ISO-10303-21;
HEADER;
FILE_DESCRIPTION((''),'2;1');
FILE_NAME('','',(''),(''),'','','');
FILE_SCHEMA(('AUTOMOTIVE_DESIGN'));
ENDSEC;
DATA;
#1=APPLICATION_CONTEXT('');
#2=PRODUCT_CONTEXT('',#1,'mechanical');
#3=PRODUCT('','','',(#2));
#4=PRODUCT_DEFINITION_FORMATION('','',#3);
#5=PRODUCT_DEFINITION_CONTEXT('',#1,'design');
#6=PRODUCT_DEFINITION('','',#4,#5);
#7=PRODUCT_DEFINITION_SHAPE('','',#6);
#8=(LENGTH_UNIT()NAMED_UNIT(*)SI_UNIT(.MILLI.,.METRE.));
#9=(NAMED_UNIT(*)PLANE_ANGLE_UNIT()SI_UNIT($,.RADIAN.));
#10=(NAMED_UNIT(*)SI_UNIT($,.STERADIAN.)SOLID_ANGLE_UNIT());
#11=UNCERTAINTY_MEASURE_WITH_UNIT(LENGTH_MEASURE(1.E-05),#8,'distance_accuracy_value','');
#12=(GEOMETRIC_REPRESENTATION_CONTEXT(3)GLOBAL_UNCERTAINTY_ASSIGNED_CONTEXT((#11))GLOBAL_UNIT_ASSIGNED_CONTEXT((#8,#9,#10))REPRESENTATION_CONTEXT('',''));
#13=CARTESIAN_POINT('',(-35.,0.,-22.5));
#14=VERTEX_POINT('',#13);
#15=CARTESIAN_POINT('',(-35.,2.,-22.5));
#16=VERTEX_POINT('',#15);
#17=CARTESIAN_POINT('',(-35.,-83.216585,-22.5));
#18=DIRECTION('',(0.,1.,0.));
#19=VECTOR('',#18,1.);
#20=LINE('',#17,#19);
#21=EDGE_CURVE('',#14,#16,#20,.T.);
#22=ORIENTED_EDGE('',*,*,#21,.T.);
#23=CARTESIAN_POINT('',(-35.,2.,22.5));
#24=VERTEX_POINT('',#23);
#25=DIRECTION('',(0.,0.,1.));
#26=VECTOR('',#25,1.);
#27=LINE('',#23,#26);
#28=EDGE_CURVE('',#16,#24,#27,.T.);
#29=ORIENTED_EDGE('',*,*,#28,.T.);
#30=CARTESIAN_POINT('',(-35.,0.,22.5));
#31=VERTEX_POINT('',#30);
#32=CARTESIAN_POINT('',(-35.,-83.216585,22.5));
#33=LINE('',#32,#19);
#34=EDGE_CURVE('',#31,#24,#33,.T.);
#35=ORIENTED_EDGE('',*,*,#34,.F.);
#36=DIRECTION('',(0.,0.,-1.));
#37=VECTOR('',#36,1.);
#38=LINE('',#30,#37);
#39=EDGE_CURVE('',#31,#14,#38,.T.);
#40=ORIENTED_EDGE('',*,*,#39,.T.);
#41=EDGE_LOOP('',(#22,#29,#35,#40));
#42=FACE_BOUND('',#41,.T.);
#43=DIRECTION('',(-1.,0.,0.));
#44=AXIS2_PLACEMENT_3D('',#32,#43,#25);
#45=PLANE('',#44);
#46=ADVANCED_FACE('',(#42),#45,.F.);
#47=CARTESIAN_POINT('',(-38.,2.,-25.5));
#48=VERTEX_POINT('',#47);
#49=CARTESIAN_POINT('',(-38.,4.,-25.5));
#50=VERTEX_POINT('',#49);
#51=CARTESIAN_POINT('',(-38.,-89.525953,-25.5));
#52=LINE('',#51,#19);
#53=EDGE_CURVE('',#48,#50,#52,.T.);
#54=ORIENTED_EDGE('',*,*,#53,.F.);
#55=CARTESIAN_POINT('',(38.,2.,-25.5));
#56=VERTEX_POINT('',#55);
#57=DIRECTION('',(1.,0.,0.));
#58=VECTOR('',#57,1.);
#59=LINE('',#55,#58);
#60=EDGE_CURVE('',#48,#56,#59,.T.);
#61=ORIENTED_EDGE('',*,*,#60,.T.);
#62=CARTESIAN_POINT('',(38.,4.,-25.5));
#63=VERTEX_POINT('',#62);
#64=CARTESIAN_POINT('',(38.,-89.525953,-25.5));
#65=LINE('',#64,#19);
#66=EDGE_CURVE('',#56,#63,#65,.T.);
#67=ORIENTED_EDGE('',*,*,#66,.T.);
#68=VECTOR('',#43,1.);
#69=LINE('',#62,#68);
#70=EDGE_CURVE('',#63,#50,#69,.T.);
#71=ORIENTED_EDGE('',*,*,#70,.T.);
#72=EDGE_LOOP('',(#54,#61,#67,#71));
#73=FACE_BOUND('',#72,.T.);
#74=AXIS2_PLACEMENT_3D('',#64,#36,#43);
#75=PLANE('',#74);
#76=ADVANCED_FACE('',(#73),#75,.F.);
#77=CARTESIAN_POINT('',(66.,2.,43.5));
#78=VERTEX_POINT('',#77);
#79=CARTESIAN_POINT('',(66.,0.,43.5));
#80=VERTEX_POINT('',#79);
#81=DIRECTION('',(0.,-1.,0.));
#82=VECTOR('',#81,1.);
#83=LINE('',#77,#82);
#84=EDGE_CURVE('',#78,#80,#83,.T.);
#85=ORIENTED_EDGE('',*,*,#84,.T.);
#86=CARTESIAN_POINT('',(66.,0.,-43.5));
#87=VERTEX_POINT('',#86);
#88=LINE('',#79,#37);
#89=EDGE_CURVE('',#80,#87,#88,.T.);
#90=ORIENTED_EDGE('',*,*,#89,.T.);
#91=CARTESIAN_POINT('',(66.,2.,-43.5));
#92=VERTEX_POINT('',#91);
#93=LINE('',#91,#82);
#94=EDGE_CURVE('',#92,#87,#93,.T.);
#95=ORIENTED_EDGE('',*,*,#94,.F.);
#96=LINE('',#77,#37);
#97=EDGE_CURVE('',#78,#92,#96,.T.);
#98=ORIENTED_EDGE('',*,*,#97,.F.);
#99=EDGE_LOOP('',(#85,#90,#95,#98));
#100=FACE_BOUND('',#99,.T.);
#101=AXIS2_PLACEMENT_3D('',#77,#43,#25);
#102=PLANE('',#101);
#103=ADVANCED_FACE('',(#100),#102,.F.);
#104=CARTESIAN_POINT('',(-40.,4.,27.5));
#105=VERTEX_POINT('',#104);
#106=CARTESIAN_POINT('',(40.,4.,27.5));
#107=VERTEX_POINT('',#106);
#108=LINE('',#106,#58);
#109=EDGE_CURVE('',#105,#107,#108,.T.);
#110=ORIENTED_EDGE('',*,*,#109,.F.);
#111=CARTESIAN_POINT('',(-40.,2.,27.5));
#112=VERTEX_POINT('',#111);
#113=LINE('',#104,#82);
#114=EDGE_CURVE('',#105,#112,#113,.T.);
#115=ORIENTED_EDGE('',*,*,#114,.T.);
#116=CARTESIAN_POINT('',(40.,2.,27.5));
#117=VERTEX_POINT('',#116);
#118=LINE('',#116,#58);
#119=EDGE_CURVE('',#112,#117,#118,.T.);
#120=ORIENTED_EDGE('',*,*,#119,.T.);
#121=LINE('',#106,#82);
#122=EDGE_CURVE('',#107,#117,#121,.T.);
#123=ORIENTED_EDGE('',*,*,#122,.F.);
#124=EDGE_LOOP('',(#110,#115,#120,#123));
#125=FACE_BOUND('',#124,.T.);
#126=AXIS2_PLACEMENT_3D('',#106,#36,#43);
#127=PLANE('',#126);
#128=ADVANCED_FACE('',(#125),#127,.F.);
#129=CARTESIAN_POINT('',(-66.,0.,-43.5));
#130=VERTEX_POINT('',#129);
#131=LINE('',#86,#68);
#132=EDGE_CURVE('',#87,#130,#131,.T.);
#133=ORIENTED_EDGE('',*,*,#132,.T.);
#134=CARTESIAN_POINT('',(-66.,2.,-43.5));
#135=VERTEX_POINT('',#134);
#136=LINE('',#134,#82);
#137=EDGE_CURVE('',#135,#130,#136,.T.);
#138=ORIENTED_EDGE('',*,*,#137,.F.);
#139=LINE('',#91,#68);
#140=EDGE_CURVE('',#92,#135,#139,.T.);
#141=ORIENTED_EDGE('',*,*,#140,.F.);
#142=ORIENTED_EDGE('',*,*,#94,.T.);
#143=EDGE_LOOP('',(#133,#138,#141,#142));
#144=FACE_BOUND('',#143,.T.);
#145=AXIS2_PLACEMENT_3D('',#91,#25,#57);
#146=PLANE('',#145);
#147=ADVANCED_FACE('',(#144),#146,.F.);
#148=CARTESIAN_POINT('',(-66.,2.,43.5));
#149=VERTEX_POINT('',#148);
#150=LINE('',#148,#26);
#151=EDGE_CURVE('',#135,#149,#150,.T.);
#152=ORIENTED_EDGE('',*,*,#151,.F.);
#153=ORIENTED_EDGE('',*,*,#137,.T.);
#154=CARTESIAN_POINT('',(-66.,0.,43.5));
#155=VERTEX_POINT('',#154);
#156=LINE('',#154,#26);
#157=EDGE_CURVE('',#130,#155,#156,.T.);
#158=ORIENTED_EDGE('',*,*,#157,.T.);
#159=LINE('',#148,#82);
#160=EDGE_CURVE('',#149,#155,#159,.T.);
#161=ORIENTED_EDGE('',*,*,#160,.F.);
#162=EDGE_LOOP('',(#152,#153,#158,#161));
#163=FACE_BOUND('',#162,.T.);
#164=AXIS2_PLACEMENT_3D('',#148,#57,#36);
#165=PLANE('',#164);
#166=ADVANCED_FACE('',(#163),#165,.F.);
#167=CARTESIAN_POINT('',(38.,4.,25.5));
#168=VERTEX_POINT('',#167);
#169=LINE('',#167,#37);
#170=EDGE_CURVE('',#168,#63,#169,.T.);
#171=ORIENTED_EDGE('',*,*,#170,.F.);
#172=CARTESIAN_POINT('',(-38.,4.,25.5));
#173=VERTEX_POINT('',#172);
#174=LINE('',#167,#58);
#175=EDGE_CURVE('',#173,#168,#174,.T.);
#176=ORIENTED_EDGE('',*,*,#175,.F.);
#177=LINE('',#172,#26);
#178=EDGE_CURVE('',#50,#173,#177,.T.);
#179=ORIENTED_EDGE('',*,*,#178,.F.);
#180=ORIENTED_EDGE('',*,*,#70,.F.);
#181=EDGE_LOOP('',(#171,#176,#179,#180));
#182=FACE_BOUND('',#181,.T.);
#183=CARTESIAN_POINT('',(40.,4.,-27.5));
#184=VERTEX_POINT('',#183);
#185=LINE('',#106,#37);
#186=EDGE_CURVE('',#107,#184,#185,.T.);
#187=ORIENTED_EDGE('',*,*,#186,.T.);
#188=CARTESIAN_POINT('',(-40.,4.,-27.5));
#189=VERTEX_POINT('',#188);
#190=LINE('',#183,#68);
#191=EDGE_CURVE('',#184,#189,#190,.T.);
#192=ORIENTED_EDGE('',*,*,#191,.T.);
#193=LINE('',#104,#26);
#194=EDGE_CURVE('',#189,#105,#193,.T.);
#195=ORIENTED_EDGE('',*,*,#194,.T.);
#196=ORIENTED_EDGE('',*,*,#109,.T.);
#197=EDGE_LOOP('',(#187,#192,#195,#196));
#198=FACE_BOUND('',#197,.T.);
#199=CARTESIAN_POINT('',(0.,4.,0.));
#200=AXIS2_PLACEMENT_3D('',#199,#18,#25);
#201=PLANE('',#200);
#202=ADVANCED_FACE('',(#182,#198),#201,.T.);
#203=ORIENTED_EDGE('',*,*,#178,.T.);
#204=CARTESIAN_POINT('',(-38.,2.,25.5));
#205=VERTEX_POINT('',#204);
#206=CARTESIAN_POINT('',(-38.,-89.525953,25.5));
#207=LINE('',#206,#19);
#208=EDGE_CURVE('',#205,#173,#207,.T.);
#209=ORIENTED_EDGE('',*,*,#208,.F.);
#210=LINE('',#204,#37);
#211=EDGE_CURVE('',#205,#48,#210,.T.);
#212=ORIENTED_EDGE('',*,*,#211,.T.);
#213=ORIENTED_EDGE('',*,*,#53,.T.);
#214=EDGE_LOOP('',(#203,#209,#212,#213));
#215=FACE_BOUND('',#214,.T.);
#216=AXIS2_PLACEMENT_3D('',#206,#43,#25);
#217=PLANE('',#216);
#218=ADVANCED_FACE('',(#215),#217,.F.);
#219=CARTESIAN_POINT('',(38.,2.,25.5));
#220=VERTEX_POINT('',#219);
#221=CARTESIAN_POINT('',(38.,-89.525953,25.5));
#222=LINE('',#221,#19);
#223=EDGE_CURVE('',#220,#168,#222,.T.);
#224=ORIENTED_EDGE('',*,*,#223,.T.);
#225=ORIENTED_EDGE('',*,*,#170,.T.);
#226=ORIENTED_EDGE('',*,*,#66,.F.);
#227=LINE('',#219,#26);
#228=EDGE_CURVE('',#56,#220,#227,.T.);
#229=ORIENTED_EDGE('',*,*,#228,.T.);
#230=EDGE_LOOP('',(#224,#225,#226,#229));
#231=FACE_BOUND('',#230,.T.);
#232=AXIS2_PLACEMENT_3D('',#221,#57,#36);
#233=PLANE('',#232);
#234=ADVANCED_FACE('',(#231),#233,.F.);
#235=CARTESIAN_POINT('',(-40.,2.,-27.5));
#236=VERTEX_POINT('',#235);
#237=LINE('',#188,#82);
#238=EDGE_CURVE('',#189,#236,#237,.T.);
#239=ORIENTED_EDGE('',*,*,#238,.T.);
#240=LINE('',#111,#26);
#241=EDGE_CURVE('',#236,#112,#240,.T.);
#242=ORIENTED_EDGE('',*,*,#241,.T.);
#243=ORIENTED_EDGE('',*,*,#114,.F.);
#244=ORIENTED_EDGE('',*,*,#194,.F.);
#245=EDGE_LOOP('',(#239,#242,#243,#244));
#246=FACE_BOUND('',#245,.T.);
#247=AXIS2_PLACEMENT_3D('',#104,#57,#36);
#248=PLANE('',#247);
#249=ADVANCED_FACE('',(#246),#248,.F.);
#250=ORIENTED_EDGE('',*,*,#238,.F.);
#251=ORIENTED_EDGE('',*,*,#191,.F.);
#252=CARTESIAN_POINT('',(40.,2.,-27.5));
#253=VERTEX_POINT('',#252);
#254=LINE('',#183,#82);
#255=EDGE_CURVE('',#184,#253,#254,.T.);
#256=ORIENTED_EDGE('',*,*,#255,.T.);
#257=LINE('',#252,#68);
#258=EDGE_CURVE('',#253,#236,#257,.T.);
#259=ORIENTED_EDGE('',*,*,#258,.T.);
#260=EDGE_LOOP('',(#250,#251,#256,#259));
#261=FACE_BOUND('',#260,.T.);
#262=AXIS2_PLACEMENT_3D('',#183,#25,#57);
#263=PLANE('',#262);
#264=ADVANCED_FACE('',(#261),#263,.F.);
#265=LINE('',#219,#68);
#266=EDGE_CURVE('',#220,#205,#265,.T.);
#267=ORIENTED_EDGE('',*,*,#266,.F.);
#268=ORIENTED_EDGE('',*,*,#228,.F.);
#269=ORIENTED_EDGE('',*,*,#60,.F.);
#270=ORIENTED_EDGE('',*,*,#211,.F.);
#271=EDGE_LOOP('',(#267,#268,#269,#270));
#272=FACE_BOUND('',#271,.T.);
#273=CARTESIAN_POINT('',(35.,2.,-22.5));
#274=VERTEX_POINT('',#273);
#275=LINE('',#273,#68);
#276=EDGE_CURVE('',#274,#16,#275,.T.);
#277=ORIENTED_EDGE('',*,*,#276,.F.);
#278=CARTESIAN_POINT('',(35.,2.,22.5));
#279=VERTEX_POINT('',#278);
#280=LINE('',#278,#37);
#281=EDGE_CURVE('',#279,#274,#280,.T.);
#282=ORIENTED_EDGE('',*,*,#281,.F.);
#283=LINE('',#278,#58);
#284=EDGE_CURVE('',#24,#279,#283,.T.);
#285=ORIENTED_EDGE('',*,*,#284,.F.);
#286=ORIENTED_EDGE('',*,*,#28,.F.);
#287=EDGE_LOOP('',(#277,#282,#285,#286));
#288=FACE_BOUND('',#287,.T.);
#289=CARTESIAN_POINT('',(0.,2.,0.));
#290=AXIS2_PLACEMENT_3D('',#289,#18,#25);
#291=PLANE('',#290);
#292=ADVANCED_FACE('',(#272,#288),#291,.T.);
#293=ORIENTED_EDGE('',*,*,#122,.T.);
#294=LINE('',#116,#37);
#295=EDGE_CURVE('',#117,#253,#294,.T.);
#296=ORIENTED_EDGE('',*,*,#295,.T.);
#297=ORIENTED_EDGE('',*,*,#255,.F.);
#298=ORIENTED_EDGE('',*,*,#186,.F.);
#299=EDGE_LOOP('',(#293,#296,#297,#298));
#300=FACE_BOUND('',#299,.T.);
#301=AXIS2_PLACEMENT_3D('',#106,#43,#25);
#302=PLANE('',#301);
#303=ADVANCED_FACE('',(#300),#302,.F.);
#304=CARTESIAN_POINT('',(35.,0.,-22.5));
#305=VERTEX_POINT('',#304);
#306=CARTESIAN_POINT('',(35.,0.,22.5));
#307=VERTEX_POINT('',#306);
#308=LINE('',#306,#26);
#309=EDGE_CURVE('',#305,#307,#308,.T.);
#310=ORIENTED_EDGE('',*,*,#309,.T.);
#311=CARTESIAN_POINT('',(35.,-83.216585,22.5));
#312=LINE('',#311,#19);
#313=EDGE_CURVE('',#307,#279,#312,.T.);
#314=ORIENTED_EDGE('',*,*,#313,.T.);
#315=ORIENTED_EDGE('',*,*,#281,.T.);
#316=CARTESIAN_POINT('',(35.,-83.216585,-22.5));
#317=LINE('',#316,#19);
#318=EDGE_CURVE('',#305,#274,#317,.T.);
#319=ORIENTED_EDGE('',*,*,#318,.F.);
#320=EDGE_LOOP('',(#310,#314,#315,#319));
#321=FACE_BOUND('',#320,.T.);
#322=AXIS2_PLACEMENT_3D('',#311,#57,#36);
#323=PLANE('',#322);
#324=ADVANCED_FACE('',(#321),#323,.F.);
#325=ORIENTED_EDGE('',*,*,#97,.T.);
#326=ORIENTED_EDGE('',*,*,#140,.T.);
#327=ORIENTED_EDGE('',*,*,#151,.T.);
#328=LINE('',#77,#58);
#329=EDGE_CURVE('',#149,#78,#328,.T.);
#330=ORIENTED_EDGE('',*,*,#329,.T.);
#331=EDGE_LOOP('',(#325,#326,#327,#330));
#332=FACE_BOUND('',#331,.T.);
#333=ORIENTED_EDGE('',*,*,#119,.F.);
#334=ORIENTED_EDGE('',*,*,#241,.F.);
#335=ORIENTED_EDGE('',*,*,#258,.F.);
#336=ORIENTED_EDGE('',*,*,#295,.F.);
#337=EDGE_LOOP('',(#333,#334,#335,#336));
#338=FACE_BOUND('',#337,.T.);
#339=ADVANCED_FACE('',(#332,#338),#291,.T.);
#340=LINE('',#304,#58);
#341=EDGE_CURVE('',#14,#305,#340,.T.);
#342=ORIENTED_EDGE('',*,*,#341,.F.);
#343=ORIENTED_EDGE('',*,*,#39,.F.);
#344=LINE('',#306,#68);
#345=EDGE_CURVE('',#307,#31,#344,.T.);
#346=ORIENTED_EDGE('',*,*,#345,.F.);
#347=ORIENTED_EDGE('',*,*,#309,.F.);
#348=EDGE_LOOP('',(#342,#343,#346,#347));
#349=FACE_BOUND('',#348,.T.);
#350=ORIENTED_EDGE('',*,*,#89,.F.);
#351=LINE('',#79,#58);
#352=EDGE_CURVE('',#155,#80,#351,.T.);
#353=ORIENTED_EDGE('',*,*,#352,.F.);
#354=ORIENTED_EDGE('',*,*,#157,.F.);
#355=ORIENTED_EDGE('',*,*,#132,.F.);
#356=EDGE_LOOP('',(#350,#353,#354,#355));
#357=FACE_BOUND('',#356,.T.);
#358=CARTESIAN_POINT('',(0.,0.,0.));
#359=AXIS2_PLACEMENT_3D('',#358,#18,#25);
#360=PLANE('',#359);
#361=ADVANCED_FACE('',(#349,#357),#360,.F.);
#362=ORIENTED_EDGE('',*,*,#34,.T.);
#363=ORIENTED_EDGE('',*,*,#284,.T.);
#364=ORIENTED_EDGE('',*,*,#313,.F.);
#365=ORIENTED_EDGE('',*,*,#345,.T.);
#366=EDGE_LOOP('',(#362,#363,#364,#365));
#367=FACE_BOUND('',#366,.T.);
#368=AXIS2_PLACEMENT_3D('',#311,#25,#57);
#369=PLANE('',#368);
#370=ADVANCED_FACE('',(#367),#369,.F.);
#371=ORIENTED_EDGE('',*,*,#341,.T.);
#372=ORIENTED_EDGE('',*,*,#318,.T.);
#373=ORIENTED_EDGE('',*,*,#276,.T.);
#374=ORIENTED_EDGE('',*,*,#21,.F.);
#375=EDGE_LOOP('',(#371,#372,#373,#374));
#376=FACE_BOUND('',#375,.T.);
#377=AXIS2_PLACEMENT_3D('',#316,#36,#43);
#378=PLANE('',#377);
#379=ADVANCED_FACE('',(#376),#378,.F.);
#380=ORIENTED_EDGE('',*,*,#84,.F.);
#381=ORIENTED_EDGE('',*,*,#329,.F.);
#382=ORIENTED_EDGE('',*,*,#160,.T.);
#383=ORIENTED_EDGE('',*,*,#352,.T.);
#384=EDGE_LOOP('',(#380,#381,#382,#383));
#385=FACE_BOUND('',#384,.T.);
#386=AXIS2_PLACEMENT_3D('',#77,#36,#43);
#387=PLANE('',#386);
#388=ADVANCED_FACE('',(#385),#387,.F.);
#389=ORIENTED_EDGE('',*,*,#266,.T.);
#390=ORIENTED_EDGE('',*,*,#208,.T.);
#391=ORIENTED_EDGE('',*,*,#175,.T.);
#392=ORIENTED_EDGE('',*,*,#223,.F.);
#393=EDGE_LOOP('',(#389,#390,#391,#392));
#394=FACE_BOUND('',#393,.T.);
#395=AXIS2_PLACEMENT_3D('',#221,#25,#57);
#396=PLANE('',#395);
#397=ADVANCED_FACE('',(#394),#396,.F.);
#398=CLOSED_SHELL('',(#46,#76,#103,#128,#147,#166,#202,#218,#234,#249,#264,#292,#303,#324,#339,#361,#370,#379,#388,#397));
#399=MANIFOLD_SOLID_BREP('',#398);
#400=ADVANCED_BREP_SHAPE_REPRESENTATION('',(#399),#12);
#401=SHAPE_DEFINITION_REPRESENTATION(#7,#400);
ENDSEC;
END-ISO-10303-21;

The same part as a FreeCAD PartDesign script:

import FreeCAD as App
import Part
import Sketcher
from FreeCAD import Vector


def add_polygon(sketch, points):
    """Adds a closed chain of lines whose ends are joined by coincident constraints."""
    first, n = sketch.GeometryCount, len(points)
    for a, b in zip(points, points[1:] + points[:1]):
        sketch.addGeometry(Part.LineSegment(App.Vector(*a, 0), App.Vector(*b, 0)), False)
    for i in range(n):
        sketch.addConstraint(Sketcher.Constraint("Coincident", first + i, 2, first + (i + 1) % n, 1))

doc = App.newDocument("Part")
body = doc.addObject("PartDesign::Body", "Body")

# Sketch on XZ plane
sketch1 = body.newObject("Sketcher::SketchObject", "Sketch")
sketch1.AttachmentSupport = (doc.getObject("XZ_Plane"), [""])
sketch1.MapMode = "FlatFace"
add_polygon(sketch1, [(-66, -44), (-66, 44), (66, 44), (66, -44)])  # lines 0-3
sketch1.addConstraint(Sketcher.Constraint("Vertical", 0))
sketch1.addConstraint(Sketcher.Constraint("Horizontal", 1))
sketch1.addConstraint(Sketcher.Constraint("Vertical", 2))
sketch1.addConstraint(Sketcher.Constraint("Horizontal", 3))
sketch1.addConstraint(Sketcher.Constraint("Symmetric", 0, 2, 2, 2, -1, 1))
sketch1.addConstraint(Sketcher.Constraint("DistanceX", 1, 1, 1, 2, 132.0))
sketch1.addConstraint(Sketcher.Constraint("DistanceY", 0, 1, 0, 2, 87.0))
pad1 = body.newObject("PartDesign::Pad", "Pad")
pad1.Profile = sketch1
pad1.Length = 2
pad1.Reversed = True

# Sketch on XZ plane
sketch2 = body.newObject("Sketcher::SketchObject", "Sketch001")
sketch2.AttachmentSupport = (doc.getObject("XZ_Plane"), [""])
sketch2.MapMode = "FlatFace"
sketch2.AttachmentOffset = App.Placement(Vector(0, 0, -2), App.Rotation())
add_polygon(sketch2, [(-40, -28), (-40, 28), (40, 28), (40, -28)])  # lines 0-3
sketch2.addConstraint(Sketcher.Constraint("Vertical", 0))
sketch2.addConstraint(Sketcher.Constraint("Horizontal", 1))
sketch2.addConstraint(Sketcher.Constraint("Vertical", 2))
sketch2.addConstraint(Sketcher.Constraint("Horizontal", 3))
sketch2.addConstraint(Sketcher.Constraint("Symmetric", 0, 2, 2, 2, -1, 1))
sketch2.addConstraint(Sketcher.Constraint("DistanceX", 1, 1, 1, 2, 80.0))
sketch2.addConstraint(Sketcher.Constraint("DistanceY", 0, 1, 0, 2, 55.0))
pad2 = body.newObject("PartDesign::Pad", "Pad001")
pad2.Profile = sketch2
pad2.Length = 2
pad2.Reversed = True

# Sketch on XZ plane
sketch3 = body.newObject("Sketcher::SketchObject", "Sketch002")
sketch3.AttachmentSupport = (doc.getObject("XZ_Plane"), [""])
sketch3.MapMode = "FlatFace"
sketch3.AttachmentOffset = App.Placement(Vector(0, 0, -4), App.Rotation())
add_polygon(sketch3, [(-38, -26), (-38, 26), (38, 26), (38, -26)])  # lines 0-3
sketch3.addConstraint(Sketcher.Constraint("Vertical", 0))
sketch3.addConstraint(Sketcher.Constraint("Horizontal", 1))
sketch3.addConstraint(Sketcher.Constraint("Vertical", 2))
sketch3.addConstraint(Sketcher.Constraint("Horizontal", 3))
sketch3.addConstraint(Sketcher.Constraint("Symmetric", 0, 2, 2, 2, -1, 1))
sketch3.addConstraint(Sketcher.Constraint("DistanceX", 1, 1, 1, 2, 76.0))
sketch3.addConstraint(Sketcher.Constraint("DistanceY", 0, 1, 0, 2, 51.0))
pocket1 = body.newObject("PartDesign::Pocket", "Pocket")
pocket1.Profile = sketch3
pocket1.Length = 2
pocket1.Reversed = True

# Sketch on XZ plane
sketch4 = body.newObject("Sketcher::SketchObject", "Sketch003")
sketch4.AttachmentSupport = (doc.getObject("XZ_Plane"), [""])
sketch4.MapMode = "FlatFace"
sketch4.AttachmentOffset = App.Placement(Vector(0, 0, -2), App.Rotation())
add_polygon(sketch4, [(-35, -22), (-35, 22), (35, 22), (35, -22)])  # lines 0-3
sketch4.addConstraint(Sketcher.Constraint("Vertical", 0))
sketch4.addConstraint(Sketcher.Constraint("Horizontal", 1))
sketch4.addConstraint(Sketcher.Constraint("Vertical", 2))
sketch4.addConstraint(Sketcher.Constraint("Horizontal", 3))
sketch4.addConstraint(Sketcher.Constraint("Symmetric", 0, 2, 2, 2, -1, 1))
sketch4.addConstraint(Sketcher.Constraint("DistanceX", 1, 1, 1, 2, 70.0))
sketch4.addConstraint(Sketcher.Constraint("DistanceY", 0, 1, 0, 2, 45.0))
pocket2 = body.newObject("PartDesign::Pocket", "Pocket001")
pocket2.Profile = sketch4
pocket2.Length = 2
pocket2.Reversed = True

doc.recompute()
